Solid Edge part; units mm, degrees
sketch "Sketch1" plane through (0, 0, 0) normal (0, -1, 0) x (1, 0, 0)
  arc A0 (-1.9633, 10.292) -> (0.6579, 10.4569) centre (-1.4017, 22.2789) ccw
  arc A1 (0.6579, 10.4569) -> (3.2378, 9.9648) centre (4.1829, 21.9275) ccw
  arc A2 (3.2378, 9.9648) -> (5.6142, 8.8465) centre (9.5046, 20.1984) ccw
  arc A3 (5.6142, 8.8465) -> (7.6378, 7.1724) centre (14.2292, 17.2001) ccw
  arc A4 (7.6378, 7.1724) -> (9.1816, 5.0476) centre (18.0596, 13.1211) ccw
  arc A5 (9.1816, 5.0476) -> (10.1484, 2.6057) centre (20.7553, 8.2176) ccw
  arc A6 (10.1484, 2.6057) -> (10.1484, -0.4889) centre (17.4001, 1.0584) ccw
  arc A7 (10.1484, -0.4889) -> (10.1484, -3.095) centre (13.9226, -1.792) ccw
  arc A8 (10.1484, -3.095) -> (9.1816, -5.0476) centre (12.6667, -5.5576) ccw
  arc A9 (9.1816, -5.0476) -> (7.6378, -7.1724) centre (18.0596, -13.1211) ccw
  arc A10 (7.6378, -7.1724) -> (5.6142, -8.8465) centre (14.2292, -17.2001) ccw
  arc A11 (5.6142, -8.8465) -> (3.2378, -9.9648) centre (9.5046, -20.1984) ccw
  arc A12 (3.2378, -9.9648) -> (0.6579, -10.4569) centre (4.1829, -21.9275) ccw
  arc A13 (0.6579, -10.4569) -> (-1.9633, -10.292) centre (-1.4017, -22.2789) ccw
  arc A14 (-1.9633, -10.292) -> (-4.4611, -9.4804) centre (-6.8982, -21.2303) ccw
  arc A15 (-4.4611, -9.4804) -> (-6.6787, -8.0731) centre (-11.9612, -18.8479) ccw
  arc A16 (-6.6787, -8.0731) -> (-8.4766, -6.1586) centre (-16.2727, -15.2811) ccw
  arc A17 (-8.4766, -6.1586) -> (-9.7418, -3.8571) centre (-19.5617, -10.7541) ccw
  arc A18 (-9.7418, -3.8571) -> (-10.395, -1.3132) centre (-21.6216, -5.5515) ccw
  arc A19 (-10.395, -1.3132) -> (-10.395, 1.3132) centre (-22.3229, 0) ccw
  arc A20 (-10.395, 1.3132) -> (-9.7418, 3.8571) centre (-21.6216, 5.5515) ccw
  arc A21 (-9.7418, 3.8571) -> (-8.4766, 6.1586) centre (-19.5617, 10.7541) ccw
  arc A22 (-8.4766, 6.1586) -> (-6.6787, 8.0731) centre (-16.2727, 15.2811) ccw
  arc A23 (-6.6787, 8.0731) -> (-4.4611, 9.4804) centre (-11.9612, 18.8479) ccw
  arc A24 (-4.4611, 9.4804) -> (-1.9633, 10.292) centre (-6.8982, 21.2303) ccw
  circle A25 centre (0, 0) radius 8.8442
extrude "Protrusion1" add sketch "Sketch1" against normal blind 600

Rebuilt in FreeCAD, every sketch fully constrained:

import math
import FreeCAD as App
import Part
import Sketcher

V = App.Vector
Q = App.Units.Quantity

doc = App.newDocument("Part")
body = doc.addObject("PartDesign::Body", "Body")

# Sketch on XZ plane
sketch1 = body.newObject("Sketcher::SketchObject", "Sketch")
sketch1.AttachmentSupport = (doc.getObject("XZ_Plane"), [""])
sketch1.MapMode = "FlatFace"
sketch1.addGeometry(Part.ArcOfCircle(Part.Circle(V(-1.4, 22.3, 0), V(0, 0, 1), 12), math.radians(-92.68), math.radians(-80.12)), False)
sketch1.addGeometry(Part.ArcOfCircle(Part.Circle(V(-6.9, 21.2, 0), V(0, 0, 1), 12), math.radians(-78.28), math.radians(-65.72)), False)
sketch1.addGeometry(Part.ArcOfCircle(Part.Circle(V(-12, 18.8, 0), V(0, 0, 1), 12), math.radians(-63.88), math.radians(-51.32)), False)
sketch1.addGeometry(Part.ArcOfCircle(Part.Circle(V(-16.3, 15.3, 0), V(0, 0, 1), 12), math.radians(-49.48), math.radians(-36.92)), False)
sketch1.addGeometry(Part.ArcOfCircle(Part.Circle(V(-19.6, 10.8, 0), V(0, 0, 1), 12), math.radians(-35.08), math.radians(-22.51)), False)
sketch1.addGeometry(Part.ArcOfCircle(Part.Circle(V(-21.6, 5.6, 0), V(0, 0, 1), 12), math.radians(-20.68), math.radians(-8.12)), False)
sketch1.addGeometry(Part.ArcOfCircle(Part.Circle(V(-22.3, 0, 0), V(0, 0, 1), 12), math.radians(-6.28), math.radians(6.28)), False)
sketch1.addGeometry(Part.ArcOfCircle(Part.Circle(V(-21.6, -5.6, 0), V(0, 0, 1), 12), math.radians(8.12), math.radians(20.69)), False)
sketch1.addGeometry(Part.ArcOfCircle(Part.Circle(V(-19.6, -10.8, 0), V(0, 0, 1), 12), math.radians(22.52), math.radians(35.08)), False)
sketch1.addGeometry(Part.ArcOfCircle(Part.Circle(V(-16.3, -15.3, 0), V(0, 0, 1), 12), math.radians(36.92), math.radians(49.49)), False)
sketch1.addGeometry(Part.ArcOfCircle(Part.Circle(V(-12, -18.8, 0), V(0, 0, 1), 12), math.radians(51.32), math.radians(63.88)), False)
sketch1.addGeometry(Part.ArcOfCircle(Part.Circle(V(-6.9, -21.2, 0), V(0, 0, 1), 12), math.radians(65.72), math.radians(78.28)), False)
sketch1.addGeometry(Part.ArcOfCircle(Part.Circle(V(-1.4, -22.3, 0), V(0, 0, 1), 12), math.radians(80.12), math.radians(92.68)), False)
sketch1.addGeometry(Part.ArcOfCircle(Part.Circle(V(4.2, -21.9, 0), V(0, 0, 1), 12), math.radians(94.52), math.radians(107.08)), False)
sketch1.addGeometry(Part.ArcOfCircle(Part.Circle(V(9.5, -20.2, 0), V(0, 0, 1), 12), math.radians(108.92), math.radians(121.49)), False)
sketch1.addGeometry(Part.ArcOfCircle(Part.Circle(V(14.2, -17.2, 0), V(0, 0, 1), 12), math.radians(123.32), math.radians(135.88)), False)
sketch1.addGeometry(Part.ArcOfCircle(Part.Circle(V(18.1, -13.1, 0), V(0, 0, 1), 12), math.radians(137.72), math.radians(150.28)), False)
sketch1.addGeometry(Part.ArcOfCircle(Part.Circle(V(12.7, -5.6, 0), V(0, 0, 1), 3.5), math.radians(136), math.radians(172)), False)
sketch1.addGeometry(Part.ArcOfCircle(Part.Circle(V(13.9, -1.8, 0), V(0, 0, 1), 4), math.radians(161), math.radians(199)), False)
sketch1.addGeometry(Part.ArcOfCircle(Part.Circle(V(17.4, 1.1, 0), V(0, 0, 1), 7.4), math.radians(168), math.radians(192)), False)
sketch1.addGeometry(Part.ArcOfCircle(Part.Circle(V(20.8, 8.2, 0), V(0, 0, 1), 12), math.radians(-164.68), math.radians(-152.12)), False)
sketch1.addGeometry(Part.ArcOfCircle(Part.Circle(V(18.1, 13.1, 0), V(0, 0, 1), 12), math.radians(-150.28), math.radians(-137.72)), False)
sketch1.addGeometry(Part.ArcOfCircle(Part.Circle(V(14.2, 17.2, 0), V(0, 0, 1), 12), math.radians(-135.88), math.radians(-123.32)), False)
sketch1.addGeometry(Part.ArcOfCircle(Part.Circle(V(9.5, 20.2, 0), V(0, 0, 1), 12), math.radians(-121.48), math.radians(-108.92)), False)
sketch1.addGeometry(Part.ArcOfCircle(Part.Circle(V(4.2, 21.9, 0), V(0, 0, 1), 12), math.radians(-107.08), math.radians(-94.51)), False)
sketch1.addGeometry(Part.Circle(V(0, 0, 0), V(0, 0, 1), 8.8), False)
sketch1.addConstraint(Sketcher.Constraint("Coincident", 0, 1, 1, 2))
sketch1.addConstraint(Sketcher.Constraint("Coincident", 1, 1, 2, 2))
sketch1.addConstraint(Sketcher.Constraint("Coincident", 2, 1, 3, 2))
sketch1.addConstraint(Sketcher.Constraint("Coincident", 3, 1, 4, 2))
sketch1.addConstraint(Sketcher.Constraint("Coincident", 4, 1, 5, 2))
sketch1.addConstraint(Sketcher.Constraint("Coincident", 5, 1, 6, 2))
sketch1.addConstraint(Sketcher.Constraint("Coincident", 6, 1, 7, 2))
sketch1.addConstraint(Sketcher.Constraint("Coincident", 7, 1, 8, 2))
sketch1.addConstraint(Sketcher.Constraint("Coincident", 8, 1, 9, 2))
sketch1.addConstraint(Sketcher.Constraint("Coincident", 9, 1, 10, 2))
sketch1.addConstraint(Sketcher.Constraint("Coincident", 10, 1, 11, 2))
sketch1.addConstraint(Sketcher.Constraint("Coincident", 11, 1, 12, 2))
sketch1.addConstraint(Sketcher.Constraint("Coincident", 12, 1, 13, 2))
sketch1.addConstraint(Sketcher.Constraint("Coincident", 13, 1, 14, 2))
sketch1.addConstraint(Sketcher.Constraint("Coincident", 14, 1, 15, 2))
sketch1.addConstraint(Sketcher.Constraint("Coincident", 15, 1, 16, 2))
sketch1.addConstraint(Sketcher.Constraint("Coincident", 16, 1, 17, 2))
sketch1.addConstraint(Sketcher.Constraint("Coincident", 17, 1, 18, 2))
sketch1.addConstraint(Sketcher.Constraint("Coincident", 18, 1, 19, 2))
sketch1.addConstraint(Sketcher.Constraint("Coincident", 19, 1, 20, 2))
sketch1.addConstraint(Sketcher.Constraint("Coincident", 20, 1, 21, 2))
sketch1.addConstraint(Sketcher.Constraint("Coincident", 21, 1, 22, 2))
sketch1.addConstraint(Sketcher.Constraint("Coincident", 22, 1, 23, 2))
sketch1.addConstraint(Sketcher.Constraint("Coincident", 23, 1, 24, 2))
sketch1.addConstraint(Sketcher.Constraint("Coincident", 24, 1, 0, 2))
sketch1.addConstraint(Sketcher.Constraint("Coincident", 25, 3, -1, 1))
sketch1.addConstraint(Sketcher.Constraint("Equal", 0, 2))
sketch1.addConstraint(Sketcher.Constraint("Equal", 3, 5))
sketch1.addConstraint(Sketcher.Constraint("Equal", 1, 6))
sketch1.addConstraint(Sketcher.Constraint("Equal", 3, 8))
sketch1.addConstraint(Sketcher.Constraint("Equal", 7, 9))
sketch1.addConstraint(Sketcher.Constraint("Equal", 6, 11))
sketch1.addConstraint(Sketcher.Constraint("Equal", 10, 12))
sketch1.addConstraint(Sketcher.Constraint("Equal", 5, 13))
sketch1.addConstraint(Sketcher.Constraint("Equal", 12, 15))
sketch1.addConstraint(Sketcher.Constraint("Equal", 2, 22))
sketch1.addConstraint(Sketcher.Constraint("Equal", 9, 24))
sketch1.addConstraint(Sketcher.Constraint("Symmetric", 1, 3, 11, 3, -1))
sketch1.addConstraint(Sketcher.Constraint("Symmetric", 5, 1, 6, 1, -1))
sketch1.addConstraint(Sketcher.Constraint("Symmetric", 4, 1, 7, 1, -1))
sketch1.addConstraint(Sketcher.Constraint("Symmetric", 3, 1, 8, 1, -1))
sketch1.addConstraint(Sketcher.Constraint("Symmetric", 2, 1, 9, 1, -1))
sketch1.addConstraint(Sketcher.Constraint("Symmetric", 16, 1, 20, 1, -1))
sketch1.addConstraint(Sketcher.Constraint("Symmetric", 15, 1, 21, 1, -1))
sketch1.addConstraint(Sketcher.Constraint("Symmetric", 14, 1, 22, 1, -1))
sketch1.addConstraint(Sketcher.Constraint("Symmetric", 13, 1, 23, 1, -1))
sketch1.addConstraint(Sketcher.Constraint("Symmetric", 12, 1, 24, 1, -1))
sketch1.addConstraint(Sketcher.Constraint("Vertical", 1, 1, 10, 1))
sketch1.addConstraint(Sketcher.Constraint("Vertical", 0, 1, 11, 1))
sketch1.addConstraint(Sketcher.Constraint("Vertical", 17, 1, 18, 1))
sketch1.addConstraint(Sketcher.Constraint("Vertical", 18, 1, 19, 1))
sketch1.addConstraint(Sketcher.Constraint("Radius", 1, Q("12 mm")))
sketch1.addConstraint(Sketcher.Constraint("Radius", 7, Q("11.997 mm")))
sketch1.addConstraint(Sketcher.Constraint("Radius", 13, Q("12.003 mm")))
sketch1.addConstraint(Sketcher.Constraint("Radius", 19, Q("7.415 mm")))
sketch1.addConstraint(Sketcher.Constraint("Radius", 20, Q("12.001 mm")))
sketch1.addConstraint(Sketcher.Constraint("Diameter", 25, Q("17.6884 mm")))
sketch1.addConstraint(Sketcher.Constraint("DistanceX", -1, 1, 19, 3, Q("17.4 mm")))
sketch1.addConstraint(Sketcher.Constraint("Radius", 0, Q("12.0017 mm")))
sketch1.addConstraint(Sketcher.Constraint("Radius", 4, Q("11.9966 mm")))
sketch1.addConstraint(Sketcher.Constraint("Radius", 10, Q("11.9986 mm")))
sketch1.addConstraint(Sketcher.Constraint("Radius", 14, Q("11.9949 mm")))
sketch1.addConstraint(Sketcher.Constraint("Radius", 16, Q("12.0023 mm")))
sketch1.addConstraint(Sketcher.Constraint("Radius", 17, Q("3.5222 mm")))
sketch1.addConstraint(Sketcher.Constraint("Radius", 18, Q("3.9928 mm")))
sketch1.addConstraint(Sketcher.Constraint("Radius", 21, Q("11.9977 mm")))
sketch1.addConstraint(Sketcher.Constraint("Radius", 23, Q("12.0052 mm")))
sketch1.addConstraint(Sketcher.Constraint("DistanceY", 7, 3, 2, 3, Q("24.4 mm")))
sketch1.addConstraint(Sketcher.Constraint("DistanceX", 13, 1, 15, 1, Q("4.4 mm")))
sketch1.addConstraint(Sketcher.Constraint("DistanceX", 9, 3, 10, 3, Q("4.31 mm")))
sketch1.addConstraint(Sketcher.Constraint("DistanceX", 14, 3, 18, 3, Q("4.42 mm")))
sketch1.addConstraint(Sketcher.Constraint("DistanceY", 18, 3, 20, 3, Q("10.01 mm")))
sketch1.addConstraint(Sketcher.Constraint("DistanceY", 1, 1, 1, 3, Q("11.75 mm")))
sketch1.addConstraint(Sketcher.Constraint("DistanceY", 5, 1, 2, 1, Q("6.76 mm")))
sketch1.addConstraint(Sketcher.Constraint("DistanceX", 12, 1, 13, 1, Q("2.58 mm")))
sketch1.addConstraint(Sketcher.Constraint("DistanceY", 17, 3, 16, 1, Q("0.51 mm")))
sketch1.addConstraint(Sketcher.Constraint("DistanceX", 2, 3, -1, 1, Q("11.962 mm")))
sketch1.addConstraint(Sketcher.Constraint("DistanceX", 6, 3, -1, 1, Q("22.323 mm")))
sketch1.addConstraint(Sketcher.Constraint("DistanceY", 7, 3, -1, 1, Q("5.551 mm")))
sketch1.addConstraint(Sketcher.Constraint("DistanceY", 9, 3, -1, 1, Q("15.279 mm")))
sketch1.addConstraint(Sketcher.Constraint("DistanceY", 18, 3, -1, 1, Q("1.792 mm")))
sketch1.addConstraint(Sketcher.Constraint("DistanceX", -1, 1, 23, 3, Q("9.507 mm")))
sketch1.addConstraint(Sketcher.Constraint("DistanceY", -1, 1, 23, 3, Q("20.203 mm")))
sketch1.addConstraint(Sketcher.Constraint("DistanceY", -1, 1, 0, 1, Q("10.292 mm")))
sketch1.addConstraint(Sketcher.Constraint("DistanceX", 1, 1, -1, 1, Q("4.461 mm")))
sketch1.addConstraint(Sketcher.Constraint("DistanceY", -1, 1, 4, 1, Q("3.857 mm")))
sketch1.addConstraint(Sketcher.Constraint("DistanceX", -1, 1, 12, 1, Q("0.658 mm")))
sketch1.addConstraint(Sketcher.Constraint("DistanceY", 12, 1, -1, 1, Q("10.457 mm")))
sketch1.addConstraint(Sketcher.Constraint("DistanceY", 17, 1, -1, 1, Q("3.095 mm")))
sketch1.addConstraint(Sketcher.Constraint("DistanceX", 4, 3, 3, 3, Q("3.284 mm")))
sketch1.addConstraint(Sketcher.Constraint("DistanceX", 13, 3, 15, 3, Q("10.045 mm")))
sketch1.addConstraint(Sketcher.Constraint("DistanceY", 14, 3, 16, 3, Q("7.071 mm")))
pad1 = body.newObject("PartDesign::Pad", "Pad")
pad1.Profile = sketch1
pad1.Length = 600
pad1.Reversed = True

doc.recompute()
